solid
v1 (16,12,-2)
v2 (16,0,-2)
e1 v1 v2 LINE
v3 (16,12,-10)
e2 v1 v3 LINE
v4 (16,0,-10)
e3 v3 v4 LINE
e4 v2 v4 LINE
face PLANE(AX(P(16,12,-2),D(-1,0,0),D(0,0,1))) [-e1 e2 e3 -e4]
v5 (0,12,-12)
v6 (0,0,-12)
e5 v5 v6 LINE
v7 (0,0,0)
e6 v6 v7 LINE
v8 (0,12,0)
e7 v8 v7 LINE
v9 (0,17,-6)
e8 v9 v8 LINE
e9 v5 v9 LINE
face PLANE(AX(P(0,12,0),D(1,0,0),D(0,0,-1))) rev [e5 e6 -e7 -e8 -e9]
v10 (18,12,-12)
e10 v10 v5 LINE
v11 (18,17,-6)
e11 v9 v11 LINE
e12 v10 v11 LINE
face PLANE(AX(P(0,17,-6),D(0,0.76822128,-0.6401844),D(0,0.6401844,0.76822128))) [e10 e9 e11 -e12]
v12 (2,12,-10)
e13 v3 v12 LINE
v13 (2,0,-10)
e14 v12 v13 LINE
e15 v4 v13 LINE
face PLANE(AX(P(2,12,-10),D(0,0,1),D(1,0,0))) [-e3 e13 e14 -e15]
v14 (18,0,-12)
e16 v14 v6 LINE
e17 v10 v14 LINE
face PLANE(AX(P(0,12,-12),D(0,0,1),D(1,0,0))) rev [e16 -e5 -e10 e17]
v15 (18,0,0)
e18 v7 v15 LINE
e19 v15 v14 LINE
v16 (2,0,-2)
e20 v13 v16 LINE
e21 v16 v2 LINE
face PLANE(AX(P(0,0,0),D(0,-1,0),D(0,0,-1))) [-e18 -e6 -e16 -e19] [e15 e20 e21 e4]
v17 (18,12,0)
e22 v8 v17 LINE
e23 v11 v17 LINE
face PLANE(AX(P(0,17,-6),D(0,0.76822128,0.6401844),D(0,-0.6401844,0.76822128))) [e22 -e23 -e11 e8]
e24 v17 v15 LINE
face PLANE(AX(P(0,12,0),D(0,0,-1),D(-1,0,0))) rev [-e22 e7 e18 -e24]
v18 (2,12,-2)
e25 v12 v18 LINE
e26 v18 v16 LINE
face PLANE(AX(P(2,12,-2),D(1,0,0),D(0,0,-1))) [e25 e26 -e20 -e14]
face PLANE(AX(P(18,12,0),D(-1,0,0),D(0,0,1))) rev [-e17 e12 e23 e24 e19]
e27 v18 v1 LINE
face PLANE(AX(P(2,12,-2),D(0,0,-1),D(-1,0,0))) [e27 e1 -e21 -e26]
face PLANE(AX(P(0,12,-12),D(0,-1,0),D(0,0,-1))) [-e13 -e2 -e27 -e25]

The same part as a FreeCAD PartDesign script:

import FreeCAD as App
import Part
import Sketcher

V = App.Vector

doc = App.newDocument("Part")
params = doc.addObject("Spreadsheet::Sheet", "Params")
for row, (alias, value) in enumerate([
    ("sketch1_width", "18 mm"),
    ("sketch1_width2", "14 mm"),
    ("sketch1_height", "12 mm"),
    ("sketch1_height2", "8 mm"),
    ("pad1_length", "12 mm"),
    ("sketch2_height", "12 mm"),
    ("pad2_length", "18 mm"),
], start=1):
    params.set(f"A{row}", alias)
    params.set(f"B{row}", "=" + value)
    params.setAlias(f"B{row}", alias)

body = doc.addObject("PartDesign::Body", "Body")

# Sketch on XZ plane
sketch1 = body.newObject("Sketcher::SketchObject", "Sketch")
sketch1.AttachmentSupport = (doc.getObject("XZ_Plane"), [""])
sketch1.MapMode = "FlatFace"
sketch1.addGeometry([
    Part.LineSegment(V(0, -12, 0), V(0, 0, 0)),  # 0
    Part.LineSegment(V(0, 0, 0), V(18, 0, 0)),  # 1
    Part.LineSegment(V(18, 0, 0), V(18, -12, 0)),  # 2
    Part.LineSegment(V(18, -12, 0), V(0, -12, 0)),  # 3
    Part.LineSegment(V(16, -2, 0), V(2, -2, 0)),  # 4
    Part.LineSegment(V(2, -2, 0), V(2, -10, 0)),  # 5
    Part.LineSegment(V(2, -10, 0), V(16, -10, 0)),  # 6
    Part.LineSegment(V(16, -10, 0), V(16, -2, 0)),  # 7
], False)
sketch1.addConstraint([
    Sketcher.Constraint("Coincident", 0, 2, 1, 1),
    Sketcher.Constraint("Coincident", 1, 2, 2, 1),
    Sketcher.Constraint("Coincident", 2, 2, 3, 1),
    Sketcher.Constraint("Coincident", 3, 2, 0, 1),
    Sketcher.Constraint("Coincident", 4, 2, 5, 1),
    Sketcher.Constraint("Coincident", 5, 2, 6, 1),
    Sketcher.Constraint("Coincident", 6, 2, 7, 1),
    Sketcher.Constraint("Coincident", 7, 2, 4, 1),
    Sketcher.Constraint("Vertical", 0),
    Sketcher.Constraint("Horizontal", 1),
    Sketcher.Constraint("Vertical", 2),
    Sketcher.Constraint("Horizontal", 3),
    Sketcher.Constraint("Horizontal", 4),
    Sketcher.Constraint("Vertical", 5),
    Sketcher.Constraint("Horizontal", 6),
    Sketcher.Constraint("Vertical", 7),
    Sketcher.Constraint("Coincident", 0, 2, -1, 1),
    Sketcher.Constraint("DistanceX", 1, 1, 1, 2, 18.0),
    Sketcher.Constraint("DistanceX", 4, 2, 4, 1, 14.0),
    Sketcher.Constraint("DistanceY", 0, 1, 0, 2, 12.0),
    Sketcher.Constraint("DistanceY", 5, 2, 5, 1, 8.0),
    Sketcher.Constraint("DistanceX", -1, 1, 4, 2, 2.0),
    Sketcher.Constraint("DistanceY", 4, 2, -1, 1, 2.0),
])
sketch1.setExpression("Constraints[17]", "Params.sketch1_width")
sketch1.setExpression("Constraints[18]", "Params.sketch1_width2")
sketch1.setExpression("Constraints[19]", "Params.sketch1_height")
sketch1.setExpression("Constraints[20]", "Params.sketch1_height2")
pad1 = body.newObject("PartDesign::Pad", "Pad")
pad1.Profile = sketch1
pad1.setExpression("Length", "Params.pad1_length")
pad1.Reversed = True

# Sketch on YZ plane
sketch2 = body.newObject("Sketcher::SketchObject", "Sketch001")
sketch2.AttachmentSupport = (doc.getObject("YZ_Plane"), [""])
sketch2.MapMode = "FlatFace"
sketch2.AttachmentOffset = App.Placement(V(0, 0, 18), App.Rotation())
sketch2.addGeometry([
    Part.LineSegment(V(17, -6, 0), V(12, 0, 0)),
    Part.LineSegment(V(12, 0, 0), V(12, -12, 0)),
    Part.LineSegment(V(12, -12, 0), V(17, -6, 0)),
], False)
sketch2.addConstraint([
    Sketcher.Constraint("Coincident", 0, 2, 1, 1),
    Sketcher.Constraint("Coincident", 1, 2, 2, 1),
    Sketcher.Constraint("Coincident", 2, 2, 0, 1),
    Sketcher.Constraint("Vertical", 1),
    Sketcher.Constraint("PointOnObject", 0, 2, -1),
    Sketcher.Constraint("Equal", 0, 2),
    Sketcher.Constraint("DistanceY", 1, 2, 1, 1, 12.0),
    Sketcher.Constraint("DistanceX", -1, 1, 0, 2, 12.0),
    Sketcher.Constraint("DistanceX", -1, 1, 2, 2, 17.0),
])
sketch2.setExpression("Constraints[6]", "Params.sketch2_height")
pad2 = body.newObject("PartDesign::Pad", "Pad001")
pad2.Profile = sketch2
pad2.setExpression("Length", "Params.pad2_length")
pad2.Reversed = True

doc.recompute()
